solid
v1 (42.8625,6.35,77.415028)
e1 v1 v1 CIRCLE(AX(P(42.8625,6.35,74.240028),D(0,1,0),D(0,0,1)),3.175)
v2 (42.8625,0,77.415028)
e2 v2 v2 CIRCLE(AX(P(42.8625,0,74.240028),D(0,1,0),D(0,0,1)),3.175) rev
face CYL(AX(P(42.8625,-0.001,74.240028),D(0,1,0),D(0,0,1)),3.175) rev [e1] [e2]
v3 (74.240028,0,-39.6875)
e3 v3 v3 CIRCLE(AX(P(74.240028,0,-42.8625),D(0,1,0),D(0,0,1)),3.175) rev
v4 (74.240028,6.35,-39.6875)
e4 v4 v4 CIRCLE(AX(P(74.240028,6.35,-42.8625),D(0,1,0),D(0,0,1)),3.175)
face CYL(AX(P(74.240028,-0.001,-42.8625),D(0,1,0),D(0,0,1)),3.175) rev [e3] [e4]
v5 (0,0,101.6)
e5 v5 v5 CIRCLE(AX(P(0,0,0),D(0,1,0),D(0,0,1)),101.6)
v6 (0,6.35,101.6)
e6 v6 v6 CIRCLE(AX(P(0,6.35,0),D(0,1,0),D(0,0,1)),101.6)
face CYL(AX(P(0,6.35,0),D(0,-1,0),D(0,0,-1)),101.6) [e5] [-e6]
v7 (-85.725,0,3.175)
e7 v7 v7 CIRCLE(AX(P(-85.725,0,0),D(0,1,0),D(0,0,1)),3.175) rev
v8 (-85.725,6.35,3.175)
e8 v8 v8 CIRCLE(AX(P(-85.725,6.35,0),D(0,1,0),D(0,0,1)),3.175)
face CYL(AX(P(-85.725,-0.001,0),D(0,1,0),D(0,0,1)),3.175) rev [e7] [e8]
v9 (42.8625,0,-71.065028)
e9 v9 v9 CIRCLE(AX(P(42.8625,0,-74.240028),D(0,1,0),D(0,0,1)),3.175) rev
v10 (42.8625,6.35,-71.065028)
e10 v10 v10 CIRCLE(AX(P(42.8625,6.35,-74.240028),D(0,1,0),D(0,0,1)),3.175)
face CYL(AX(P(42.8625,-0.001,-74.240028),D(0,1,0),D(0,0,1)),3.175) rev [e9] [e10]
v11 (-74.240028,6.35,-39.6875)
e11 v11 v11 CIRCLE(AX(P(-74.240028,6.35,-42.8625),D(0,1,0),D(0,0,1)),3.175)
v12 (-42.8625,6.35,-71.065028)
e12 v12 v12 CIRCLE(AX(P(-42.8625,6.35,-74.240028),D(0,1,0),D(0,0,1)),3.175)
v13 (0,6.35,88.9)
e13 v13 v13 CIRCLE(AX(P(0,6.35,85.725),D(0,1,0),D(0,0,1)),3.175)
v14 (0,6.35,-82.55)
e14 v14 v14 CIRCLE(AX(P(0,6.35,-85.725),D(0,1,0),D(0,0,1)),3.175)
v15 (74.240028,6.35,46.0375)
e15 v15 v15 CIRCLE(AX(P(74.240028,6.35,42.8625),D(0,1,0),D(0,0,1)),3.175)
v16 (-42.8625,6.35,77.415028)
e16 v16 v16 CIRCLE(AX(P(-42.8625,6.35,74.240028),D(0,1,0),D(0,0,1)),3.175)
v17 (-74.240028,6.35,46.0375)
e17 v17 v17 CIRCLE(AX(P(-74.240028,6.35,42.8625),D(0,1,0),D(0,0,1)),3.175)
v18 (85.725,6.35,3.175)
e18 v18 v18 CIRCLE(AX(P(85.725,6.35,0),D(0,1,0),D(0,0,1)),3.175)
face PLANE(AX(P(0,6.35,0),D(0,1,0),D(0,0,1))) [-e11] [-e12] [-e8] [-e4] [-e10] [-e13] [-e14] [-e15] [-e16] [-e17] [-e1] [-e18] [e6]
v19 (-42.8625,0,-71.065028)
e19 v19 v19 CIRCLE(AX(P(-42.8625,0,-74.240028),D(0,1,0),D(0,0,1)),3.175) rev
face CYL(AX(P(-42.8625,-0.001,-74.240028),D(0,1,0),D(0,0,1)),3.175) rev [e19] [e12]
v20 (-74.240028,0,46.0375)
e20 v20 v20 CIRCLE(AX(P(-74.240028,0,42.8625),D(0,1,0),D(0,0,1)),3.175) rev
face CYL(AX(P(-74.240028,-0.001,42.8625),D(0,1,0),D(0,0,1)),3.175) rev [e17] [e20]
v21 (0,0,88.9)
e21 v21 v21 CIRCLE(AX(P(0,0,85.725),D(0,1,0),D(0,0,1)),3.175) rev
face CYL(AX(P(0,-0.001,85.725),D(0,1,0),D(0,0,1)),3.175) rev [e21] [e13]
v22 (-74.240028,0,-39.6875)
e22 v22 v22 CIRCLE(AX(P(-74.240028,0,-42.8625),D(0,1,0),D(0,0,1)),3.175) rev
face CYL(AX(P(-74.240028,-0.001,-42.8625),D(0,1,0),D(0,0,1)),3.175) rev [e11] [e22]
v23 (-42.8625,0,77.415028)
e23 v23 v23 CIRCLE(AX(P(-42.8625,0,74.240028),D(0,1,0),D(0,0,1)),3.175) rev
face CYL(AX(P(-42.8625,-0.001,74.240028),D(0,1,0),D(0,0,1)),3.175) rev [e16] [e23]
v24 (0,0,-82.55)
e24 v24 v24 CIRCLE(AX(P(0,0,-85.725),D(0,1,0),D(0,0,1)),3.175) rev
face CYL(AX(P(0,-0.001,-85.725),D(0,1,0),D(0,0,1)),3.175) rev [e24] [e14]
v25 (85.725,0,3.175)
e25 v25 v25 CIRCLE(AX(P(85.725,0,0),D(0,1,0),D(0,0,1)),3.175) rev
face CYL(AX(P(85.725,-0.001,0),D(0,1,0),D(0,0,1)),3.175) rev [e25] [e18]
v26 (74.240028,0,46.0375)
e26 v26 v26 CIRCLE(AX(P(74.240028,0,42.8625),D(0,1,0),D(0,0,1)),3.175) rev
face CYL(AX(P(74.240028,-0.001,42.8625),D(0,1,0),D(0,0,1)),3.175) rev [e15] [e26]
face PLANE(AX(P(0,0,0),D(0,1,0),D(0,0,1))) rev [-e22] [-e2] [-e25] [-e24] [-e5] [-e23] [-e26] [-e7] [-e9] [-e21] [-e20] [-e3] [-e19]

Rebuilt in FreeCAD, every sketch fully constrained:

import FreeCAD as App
import Part
import Sketcher
Q = App.Units.Quantity

doc = App.newDocument("Part")
body = doc.addObject("PartDesign::Body", "Body")

# Sketch on XZ plane
sketch1 = body.newObject("Sketcher::SketchObject", "Sketch")
sketch1.AttachmentSupport = (doc.getObject("XZ_Plane"), [""])
sketch1.MapMode = "FlatFace"
sketch1.addGeometry(Part.Circle(App.Vector(0, 0, 0), App.Vector(0, 0, 1), 102), False)
sketch1.addConstraint(Sketcher.Constraint("Coincident", 0, 3, -1, 1))
sketch1.addConstraint(Sketcher.Constraint("Diameter", 0, Q("8 in")))
pad1 = body.newObject("PartDesign::Pad", "Pad")
pad1.Profile = sketch1
pad1.Length = Q("0.25 in")
pad1.Reversed = True

# Sketch on XZ plane
sketch2 = body.newObject("Sketcher::SketchObject", "Sketch001")
sketch2.AttachmentSupport = (doc.getObject("XZ_Plane"), [""])
sketch2.MapMode = "FlatFace"
sketch2.AttachmentOffset = App.Placement(App.Vector(0, 0, -0.25 * 25.4), App.Rotation())
sketch2.addGeometry(Part.Circle(App.Vector(0, -85.7, 0), App.Vector(0, 0, 1), 3.2), False)
sketch2.addConstraint(Sketcher.Constraint("PointOnObject", 0, 3, -2))
sketch2.addConstraint(Sketcher.Constraint("Diameter", 0, Q("0.25 in")))
sketch2.addConstraint(Sketcher.Constraint("DistanceY", 0, 3, -1, 1, Q("3.375 in")))
pocket1 = body.newObject("PartDesign::Pocket", "Pocket")
pocket1.Profile = sketch2
pocket1.Type = "UpToFirst"
pocket1.Reversed = True

# Sketch on XZ plane
sketch3 = body.newObject("Sketcher::SketchObject", "Sketch002")
sketch3.AttachmentSupport = (doc.getObject("XZ_Plane"), [""])
sketch3.MapMode = "FlatFace"
sketch3.AttachmentOffset = App.Placement(App.Vector(0, 0, -0.25 * 25.4), App.Rotation())
sketch3.addGeometry(Part.Circle(App.Vector(42.9, -74.2, 0), App.Vector(0, 0, 1), 3.2), False)
sketch3.addConstraint(Sketcher.Constraint("Diameter", 0, Q("0.25 in")))
sketch3.addConstraint(Sketcher.Constraint("DistanceX", -1, 1, 0, 3, Q("1.6875 in")))
sketch3.addConstraint(Sketcher.Constraint("DistanceY", 0, 3, -1, 1, Q("74.240028 mm")))
pocket2 = body.newObject("PartDesign::Pocket", "Pocket001")
pocket2.Profile = sketch3
pocket2.Type = "UpToFirst"
pocket2.Reversed = True

# Sketch on XZ plane
sketch4 = body.newObject("Sketcher::SketchObject", "Sketch003")
sketch4.AttachmentSupport = (doc.getObject("XZ_Plane"), [""])
sketch4.MapMode = "FlatFace"
sketch4.AttachmentOffset = App.Placement(App.Vector(0, 0, -0.25 * 25.4), App.Rotation())
sketch4.addGeometry(Part.Circle(App.Vector(74.2, -42.9, 0), App.Vector(0, 0, 1), 3.2), False)
sketch4.addConstraint(Sketcher.Constraint("Diameter", 0, Q("0.25 in")))
sketch4.addConstraint(Sketcher.Constraint("DistanceY", 0, 3, -1, 1, Q("1.6875 in")))
sketch4.addConstraint(Sketcher.Constraint("DistanceX", -1, 1, 0, 3, Q("74.240028 mm")))
pocket3 = body.newObject("PartDesign::Pocket", "Pocket002")
pocket3.Profile = sketch4
pocket3.Type = "UpToFirst"
pocket3.Reversed = True

# Sketch on XZ plane
sketch5 = body.newObject("Sketcher::SketchObject", "Sketch004")
sketch5.AttachmentSupport = (doc.getObject("XZ_Plane"), [""])
sketch5.MapMode = "FlatFace"
sketch5.AttachmentOffset = App.Placement(App.Vector(0, 0, -0.25 * 25.4), App.Rotation())
sketch5.addGeometry(Part.Circle(App.Vector(85.7, 0, 0), App.Vector(0, 0, 1), 3.2), False)
sketch5.addConstraint(Sketcher.Constraint("PointOnObject", 0, 3, -1))
sketch5.addConstraint(Sketcher.Constraint("Diameter", 0, Q("0.25 in")))
sketch5.addConstraint(Sketcher.Constraint("DistanceX", -1, 1, 0, 3, Q("3.375 in")))
pocket4 = body.newObject("PartDesign::Pocket", "Pocket003")
pocket4.Profile = sketch5
pocket4.Type = "UpToFirst"
pocket4.Reversed = True

# Sketch on XZ plane
sketch6 = body.newObject("Sketcher::SketchObject", "Sketch005")
sketch6.AttachmentSupport = (doc.getObject("XZ_Plane"), [""])
sketch6.MapMode = "FlatFace"
sketch6.AttachmentOffset = App.Placement(App.Vector(0, 0, -0.25 * 25.4), App.Rotation())
sketch6.addGeometry(Part.Circle(App.Vector(74.2, 42.9, 0), App.Vector(0, 0, 1), 3.2), False)
sketch6.addConstraint(Sketcher.Constraint("Diameter", 0, Q("0.25 in")))
sketch6.addConstraint(Sketcher.Constraint("DistanceY", -1, 1, 0, 3, Q("1.6875 in")))
sketch6.addConstraint(Sketcher.Constraint("DistanceX", -1, 1, 0, 3, Q("74.240028 mm")))
pocket5 = body.newObject("PartDesign::Pocket", "Pocket004")
pocket5.Profile = sketch6
pocket5.Type = "UpToFirst"
pocket5.Reversed = True

# Sketch on XZ plane
sketch7 = body.newObject("Sketcher::SketchObject", "Sketch006")
sketch7.AttachmentSupport = (doc.getObject("XZ_Plane"), [""])
sketch7.MapMode = "FlatFace"
sketch7.AttachmentOffset = App.Placement(App.Vector(0, 0, -0.25 * 25.4), App.Rotation())
sketch7.addGeometry(Part.Circle(App.Vector(42.9, 74.2, 0), App.Vector(0, 0, 1), 3.2), False)
sketch7.addConstraint(Sketcher.Constraint("Diameter", 0, Q("0.25 in")))
sketch7.addConstraint(Sketcher.Constraint("DistanceX", -1, 1, 0, 3, Q("1.6875 in")))
sketch7.addConstraint(Sketcher.Constraint("DistanceY", -1, 1, 0, 3, Q("74.240028 mm")))
pocket6 = body.newObject("PartDesign::Pocket", "Pocket005")
pocket6.Profile = sketch7
pocket6.Type = "UpToFirst"
pocket6.Reversed = True

# Sketch on XZ plane
sketch8 = body.newObject("Sketcher::SketchObject", "Sketch007")
sketch8.AttachmentSupport = (doc.getObject("XZ_Plane"), [""])
sketch8.MapMode = "FlatFace"
sketch8.AttachmentOffset = App.Placement(App.Vector(0, 0, -0.25 * 25.4), App.Rotation())
sketch8.addGeometry(Part.Circle(App.Vector(0, 85.7, 0), App.Vector(0, 0, 1), 3.2), False)
sketch8.addConstraint(Sketcher.Constraint("PointOnObject", 0, 3, -2))
sketch8.addConstraint(Sketcher.Constraint("Diameter", 0, Q("0.25 in")))
sketch8.addConstraint(Sketcher.Constraint("DistanceY", -1, 1, 0, 3, Q("3.375 in")))
pocket7 = body.newObject("PartDesign::Pocket", "Pocket006")
pocket7.Profile = sketch8
pocket7.Type = "UpToFirst"
pocket7.Reversed = True

# Sketch on XZ plane
sketch9 = body.newObject("Sketcher::SketchObject", "Sketch008")
sketch9.AttachmentSupport = (doc.getObject("XZ_Plane"), [""])
sketch9.MapMode = "FlatFace"
sketch9.AttachmentOffset = App.Placement(App.Vector(0, 0, -0.25 * 25.4), App.Rotation())
sketch9.addGeometry(Part.Circle(App.Vector(-42.9, 74.2, 0), App.Vector(0, 0, 1), 3.2), False)
sketch9.addConstraint(Sketcher.Constraint("Diameter", 0, Q("0.25 in")))
sketch9.addConstraint(Sketcher.Constraint("DistanceX", 0, 3, -1, 1, Q("1.6875 in")))
sketch9.addConstraint(Sketcher.Constraint("DistanceY", -1, 1, 0, 3, Q("74.240028 mm")))
pocket8 = body.newObject("PartDesign::Pocket", "Pocket007")
pocket8.Profile = sketch9
pocket8.Type = "UpToFirst"
pocket8.Reversed = True

# Sketch on XZ plane
sketch10 = body.newObject("Sketcher::SketchObject", "Sketch009")
sketch10.AttachmentSupport = (doc.getObject("XZ_Plane"), [""])
sketch10.MapMode = "FlatFace"
sketch10.AttachmentOffset = App.Placement(App.Vector(0, 0, -0.25 * 25.4), App.Rotation())
sketch10.addGeometry(Part.Circle(App.Vector(-74.2, 42.9, 0), App.Vector(0, 0, 1), 3.2), False)
sketch10.addConstraint(Sketcher.Constraint("Diameter", 0, Q("0.25 in")))
sketch10.addConstraint(Sketcher.Constraint("DistanceY", -1, 1, 0, 3, Q("1.6875 in")))
sketch10.addConstraint(Sketcher.Constraint("DistanceX", 0, 3, -1, 1, Q("74.240028 mm")))
pocket9 = body.newObject("PartDesign::Pocket", "Pocket008")
pocket9.Profile = sketch10
pocket9.Type = "UpToFirst"
pocket9.Reversed = True

# Sketch on XZ plane
sketch11 = body.newObject("Sketcher::SketchObject", "Sketch010")
sketch11.AttachmentSupport = (doc.getObject("XZ_Plane"), [""])
sketch11.MapMode = "FlatFace"
sketch11.AttachmentOffset = App.Placement(App.Vector(0, 0, -0.25 * 25.4), App.Rotation())
sketch11.addGeometry(Part.Circle(App.Vector(-85.7, 0, 0), App.Vector(0, 0, 1), 3.2), False)
sketch11.addConstraint(Sketcher.Constraint("PointOnObject", 0, 3, -1))
sketch11.addConstraint(Sketcher.Constraint("Diameter", 0, Q("0.25 in")))
sketch11.addConstraint(Sketcher.Constraint("DistanceX", 0, 3, -1, 1, Q("3.375 in")))
pocket10 = body.newObject("PartDesign::Pocket", "Pocket009")
pocket10.Profile = sketch11
pocket10.Type = "UpToFirst"
pocket10.Reversed = True

# Sketch on XZ plane
sketch12 = body.newObject("Sketcher::SketchObject", "Sketch011")
sketch12.AttachmentSupport = (doc.getObject("XZ_Plane"), [""])
sketch12.MapMode = "FlatFace"
sketch12.AttachmentOffset = App.Placement(App.Vector(0, 0, -0.25 * 25.4), App.Rotation())
sketch12.addGeometry(Part.Circle(App.Vector(-74.2, -42.9, 0), App.Vector(0, 0, 1), 3.2), False)
sketch12.addConstraint(Sketcher.Constraint("Diameter", 0, Q("0.25 in")))
sketch12.addConstraint(Sketcher.Constraint("DistanceY", 0, 3, -1, 1, Q("1.6875 in")))
sketch12.addConstraint(Sketcher.Constraint("DistanceX", 0, 3, -1, 1, Q("74.240028 mm")))
pocket11 = body.newObject("PartDesign::Pocket", "Pocket010")
pocket11.Profile = sketch12
pocket11.Type = "UpToFirst"
pocket11.Reversed = True

# Sketch on XZ plane
sketch13 = body.newObject("Sketcher::SketchObject", "Sketch012")
sketch13.AttachmentSupport = (doc.getObject("XZ_Plane"), [""])
sketch13.MapMode = "FlatFace"
sketch13.AttachmentOffset = App.Placement(App.Vector(0, 0, -0.25 * 25.4), App.Rotation())
sketch13.addGeometry(Part.Circle(App.Vector(-42.9, -74.2, 0), App.Vector(0, 0, 1), 3.2), False)
sketch13.addConstraint(Sketcher.Constraint("Diameter", 0, Q("0.25 in")))
sketch13.addConstraint(Sketcher.Constraint("DistanceX", 0, 3, -1, 1, Q("1.6875 in")))
sketch13.addConstraint(Sketcher.Constraint("DistanceY", 0, 3, -1, 1, Q("74.240028 mm")))
pocket12 = body.newObject("PartDesign::Pocket", "Pocket011")
pocket12.Profile = sketch13
pocket12.Type = "UpToFirst"
pocket12.Reversed = True

doc.recompute()
